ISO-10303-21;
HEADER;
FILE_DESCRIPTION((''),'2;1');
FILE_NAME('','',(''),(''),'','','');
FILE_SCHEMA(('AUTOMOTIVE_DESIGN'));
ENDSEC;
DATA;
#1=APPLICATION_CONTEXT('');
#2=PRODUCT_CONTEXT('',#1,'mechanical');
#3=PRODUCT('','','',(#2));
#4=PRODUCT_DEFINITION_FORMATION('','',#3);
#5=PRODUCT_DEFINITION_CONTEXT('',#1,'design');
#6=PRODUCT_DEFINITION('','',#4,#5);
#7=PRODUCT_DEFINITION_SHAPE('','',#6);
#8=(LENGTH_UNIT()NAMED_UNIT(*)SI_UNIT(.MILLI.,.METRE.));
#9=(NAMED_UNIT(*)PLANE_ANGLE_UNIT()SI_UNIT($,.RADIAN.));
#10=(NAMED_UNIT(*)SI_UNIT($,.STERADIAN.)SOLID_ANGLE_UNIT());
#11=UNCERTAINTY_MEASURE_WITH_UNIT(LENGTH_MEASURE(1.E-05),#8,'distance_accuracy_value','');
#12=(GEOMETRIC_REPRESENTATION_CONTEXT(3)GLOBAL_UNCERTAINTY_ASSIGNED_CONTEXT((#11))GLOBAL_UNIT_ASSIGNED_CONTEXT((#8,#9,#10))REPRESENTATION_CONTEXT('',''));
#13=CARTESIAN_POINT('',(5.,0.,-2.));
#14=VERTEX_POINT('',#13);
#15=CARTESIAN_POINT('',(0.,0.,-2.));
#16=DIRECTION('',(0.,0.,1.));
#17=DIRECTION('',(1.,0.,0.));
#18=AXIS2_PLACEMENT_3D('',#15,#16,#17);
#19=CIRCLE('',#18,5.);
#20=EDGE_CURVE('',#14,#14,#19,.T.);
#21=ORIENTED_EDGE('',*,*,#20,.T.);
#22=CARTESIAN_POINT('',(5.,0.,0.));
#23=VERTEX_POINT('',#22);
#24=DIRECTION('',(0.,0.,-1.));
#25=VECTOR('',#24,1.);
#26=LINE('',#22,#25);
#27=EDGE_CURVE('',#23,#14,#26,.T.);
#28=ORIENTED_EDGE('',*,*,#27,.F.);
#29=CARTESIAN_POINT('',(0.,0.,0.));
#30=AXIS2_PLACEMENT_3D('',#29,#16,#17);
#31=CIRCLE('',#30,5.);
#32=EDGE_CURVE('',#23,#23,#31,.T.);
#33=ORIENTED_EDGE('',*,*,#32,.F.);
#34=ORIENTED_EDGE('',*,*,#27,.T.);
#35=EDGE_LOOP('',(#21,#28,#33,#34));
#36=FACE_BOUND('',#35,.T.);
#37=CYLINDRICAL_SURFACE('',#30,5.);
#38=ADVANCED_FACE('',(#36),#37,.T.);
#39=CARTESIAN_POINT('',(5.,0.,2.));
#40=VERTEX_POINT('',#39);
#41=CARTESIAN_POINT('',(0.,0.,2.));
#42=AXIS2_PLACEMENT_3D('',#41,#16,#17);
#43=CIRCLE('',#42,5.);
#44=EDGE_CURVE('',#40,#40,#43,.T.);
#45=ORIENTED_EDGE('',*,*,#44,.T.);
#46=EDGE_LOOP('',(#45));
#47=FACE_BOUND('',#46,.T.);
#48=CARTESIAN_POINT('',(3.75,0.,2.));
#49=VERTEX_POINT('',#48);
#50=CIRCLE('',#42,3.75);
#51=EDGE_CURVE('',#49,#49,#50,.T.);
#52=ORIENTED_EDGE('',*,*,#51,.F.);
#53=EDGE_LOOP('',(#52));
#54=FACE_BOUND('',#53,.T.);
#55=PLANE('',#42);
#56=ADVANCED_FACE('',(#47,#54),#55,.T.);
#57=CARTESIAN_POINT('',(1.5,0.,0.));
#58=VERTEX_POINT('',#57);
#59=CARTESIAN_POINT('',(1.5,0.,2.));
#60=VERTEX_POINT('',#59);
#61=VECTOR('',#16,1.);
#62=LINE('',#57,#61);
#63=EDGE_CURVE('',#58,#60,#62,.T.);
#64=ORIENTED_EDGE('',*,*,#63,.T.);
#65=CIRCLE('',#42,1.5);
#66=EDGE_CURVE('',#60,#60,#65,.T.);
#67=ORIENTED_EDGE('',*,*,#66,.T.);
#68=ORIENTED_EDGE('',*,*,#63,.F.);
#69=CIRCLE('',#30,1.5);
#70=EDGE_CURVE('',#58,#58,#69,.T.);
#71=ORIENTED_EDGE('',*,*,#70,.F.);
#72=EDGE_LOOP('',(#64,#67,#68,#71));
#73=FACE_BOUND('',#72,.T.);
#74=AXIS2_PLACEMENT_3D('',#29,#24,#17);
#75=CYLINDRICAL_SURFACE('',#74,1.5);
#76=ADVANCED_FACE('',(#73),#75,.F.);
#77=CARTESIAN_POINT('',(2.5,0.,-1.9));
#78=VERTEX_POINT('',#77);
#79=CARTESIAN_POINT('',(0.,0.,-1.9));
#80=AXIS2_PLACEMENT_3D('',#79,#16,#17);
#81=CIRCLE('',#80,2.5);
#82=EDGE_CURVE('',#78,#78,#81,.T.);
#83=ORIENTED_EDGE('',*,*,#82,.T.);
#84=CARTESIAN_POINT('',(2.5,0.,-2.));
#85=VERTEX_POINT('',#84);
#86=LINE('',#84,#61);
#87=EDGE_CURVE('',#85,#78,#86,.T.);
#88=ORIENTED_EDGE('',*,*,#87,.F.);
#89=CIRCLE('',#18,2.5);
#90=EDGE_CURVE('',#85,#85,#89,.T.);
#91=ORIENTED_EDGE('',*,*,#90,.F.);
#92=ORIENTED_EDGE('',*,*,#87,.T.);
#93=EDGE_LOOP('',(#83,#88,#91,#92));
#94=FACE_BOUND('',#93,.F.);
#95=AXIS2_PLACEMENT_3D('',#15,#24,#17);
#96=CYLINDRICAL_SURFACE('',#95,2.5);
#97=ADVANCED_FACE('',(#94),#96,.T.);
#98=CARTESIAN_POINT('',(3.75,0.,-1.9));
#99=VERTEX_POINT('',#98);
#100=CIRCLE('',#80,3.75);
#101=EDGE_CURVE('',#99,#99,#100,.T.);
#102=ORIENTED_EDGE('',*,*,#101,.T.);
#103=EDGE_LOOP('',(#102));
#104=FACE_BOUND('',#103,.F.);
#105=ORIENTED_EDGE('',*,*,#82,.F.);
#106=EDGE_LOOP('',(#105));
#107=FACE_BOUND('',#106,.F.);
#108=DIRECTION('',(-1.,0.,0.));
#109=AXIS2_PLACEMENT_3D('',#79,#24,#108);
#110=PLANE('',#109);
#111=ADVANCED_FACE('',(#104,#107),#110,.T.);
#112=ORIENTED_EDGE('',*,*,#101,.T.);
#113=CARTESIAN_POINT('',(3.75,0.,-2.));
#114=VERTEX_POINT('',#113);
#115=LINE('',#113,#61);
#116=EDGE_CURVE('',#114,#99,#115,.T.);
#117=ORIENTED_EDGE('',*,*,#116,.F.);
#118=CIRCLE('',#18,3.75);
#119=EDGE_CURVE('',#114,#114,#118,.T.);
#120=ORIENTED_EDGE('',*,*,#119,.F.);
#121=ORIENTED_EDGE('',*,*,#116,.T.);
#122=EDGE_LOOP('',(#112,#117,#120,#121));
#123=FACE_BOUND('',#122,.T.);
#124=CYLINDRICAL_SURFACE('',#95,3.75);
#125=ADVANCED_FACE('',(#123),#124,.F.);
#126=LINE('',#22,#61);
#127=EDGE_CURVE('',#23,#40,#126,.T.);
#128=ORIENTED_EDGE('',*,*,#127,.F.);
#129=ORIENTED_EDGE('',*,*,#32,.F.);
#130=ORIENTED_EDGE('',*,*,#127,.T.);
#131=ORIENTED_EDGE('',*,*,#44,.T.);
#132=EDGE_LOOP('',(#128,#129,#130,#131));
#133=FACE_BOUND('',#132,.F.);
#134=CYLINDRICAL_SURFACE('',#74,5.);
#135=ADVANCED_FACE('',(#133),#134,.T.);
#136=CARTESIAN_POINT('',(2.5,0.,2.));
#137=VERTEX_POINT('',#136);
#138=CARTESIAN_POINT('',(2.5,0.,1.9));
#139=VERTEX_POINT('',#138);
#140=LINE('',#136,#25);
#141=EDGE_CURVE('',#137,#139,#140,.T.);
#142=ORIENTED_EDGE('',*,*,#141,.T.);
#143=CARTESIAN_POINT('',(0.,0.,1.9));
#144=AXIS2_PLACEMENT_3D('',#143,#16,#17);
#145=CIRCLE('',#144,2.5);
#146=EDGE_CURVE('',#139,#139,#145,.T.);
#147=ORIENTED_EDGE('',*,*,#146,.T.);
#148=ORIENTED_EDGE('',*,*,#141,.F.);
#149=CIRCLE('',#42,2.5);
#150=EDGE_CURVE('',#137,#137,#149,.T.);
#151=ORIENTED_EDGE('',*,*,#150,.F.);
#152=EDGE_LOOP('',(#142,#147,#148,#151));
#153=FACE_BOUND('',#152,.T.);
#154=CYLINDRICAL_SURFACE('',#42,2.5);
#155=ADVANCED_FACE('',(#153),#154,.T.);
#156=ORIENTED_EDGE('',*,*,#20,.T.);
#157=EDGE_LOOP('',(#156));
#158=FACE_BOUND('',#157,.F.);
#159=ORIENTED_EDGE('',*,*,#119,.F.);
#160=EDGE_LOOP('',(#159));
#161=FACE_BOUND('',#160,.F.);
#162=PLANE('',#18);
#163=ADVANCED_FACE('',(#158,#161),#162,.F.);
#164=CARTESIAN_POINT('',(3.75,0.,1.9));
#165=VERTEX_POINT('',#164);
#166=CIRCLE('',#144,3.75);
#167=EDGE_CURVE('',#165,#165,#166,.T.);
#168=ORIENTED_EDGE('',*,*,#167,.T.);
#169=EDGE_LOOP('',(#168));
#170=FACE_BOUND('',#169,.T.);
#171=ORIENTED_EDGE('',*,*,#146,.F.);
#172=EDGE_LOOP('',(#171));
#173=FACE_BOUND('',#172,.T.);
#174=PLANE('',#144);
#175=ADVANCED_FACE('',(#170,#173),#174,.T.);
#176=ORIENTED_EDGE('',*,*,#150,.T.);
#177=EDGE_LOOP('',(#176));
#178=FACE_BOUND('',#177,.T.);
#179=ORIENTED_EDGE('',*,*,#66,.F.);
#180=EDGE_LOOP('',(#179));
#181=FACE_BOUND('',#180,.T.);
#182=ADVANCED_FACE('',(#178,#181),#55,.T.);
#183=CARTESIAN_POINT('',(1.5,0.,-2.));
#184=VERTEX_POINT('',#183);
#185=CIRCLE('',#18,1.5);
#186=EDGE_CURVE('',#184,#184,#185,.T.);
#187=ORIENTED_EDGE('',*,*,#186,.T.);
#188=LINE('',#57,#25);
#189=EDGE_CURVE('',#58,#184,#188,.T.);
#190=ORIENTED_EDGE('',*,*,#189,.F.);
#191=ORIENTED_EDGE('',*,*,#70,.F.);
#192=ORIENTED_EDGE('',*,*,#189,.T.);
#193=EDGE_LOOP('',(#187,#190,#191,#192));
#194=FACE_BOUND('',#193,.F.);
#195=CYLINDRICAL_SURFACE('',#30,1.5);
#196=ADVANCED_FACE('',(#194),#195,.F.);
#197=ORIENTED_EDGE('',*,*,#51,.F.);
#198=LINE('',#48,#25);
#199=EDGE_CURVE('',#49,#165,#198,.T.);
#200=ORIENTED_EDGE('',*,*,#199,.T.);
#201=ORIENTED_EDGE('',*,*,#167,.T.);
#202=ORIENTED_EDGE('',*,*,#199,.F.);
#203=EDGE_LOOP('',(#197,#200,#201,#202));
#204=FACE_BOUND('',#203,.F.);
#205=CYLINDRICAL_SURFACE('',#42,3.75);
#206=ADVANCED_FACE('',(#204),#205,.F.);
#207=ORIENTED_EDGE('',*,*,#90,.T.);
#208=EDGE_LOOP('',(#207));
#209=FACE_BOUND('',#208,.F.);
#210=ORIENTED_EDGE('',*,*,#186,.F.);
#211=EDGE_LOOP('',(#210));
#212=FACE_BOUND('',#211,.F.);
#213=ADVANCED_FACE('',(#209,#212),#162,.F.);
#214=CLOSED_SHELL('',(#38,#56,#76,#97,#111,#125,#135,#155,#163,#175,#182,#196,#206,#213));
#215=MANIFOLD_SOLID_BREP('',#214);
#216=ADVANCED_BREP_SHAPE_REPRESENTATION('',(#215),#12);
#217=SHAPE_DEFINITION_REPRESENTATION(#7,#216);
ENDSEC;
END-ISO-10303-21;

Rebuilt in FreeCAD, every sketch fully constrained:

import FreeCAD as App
import Part
import Sketcher
from FreeCAD import Vector
Q = App.Units.Quantity

doc = App.newDocument("Part")
params = doc.addObject("Spreadsheet::Sheet", "Params")
for row, (alias, value) in enumerate([
    ("sketch1_diameter", "10 mm"),
    ("sketch1_diameter2", "3 mm"),
    ("pad1_length", "4 mm"),
    ("sketch2_diameter", "5 mm"),
    ("sketch2_diameter2", "7.5 mm"),
    ("pocket1_length", "0.1 mm"),
], start=1):
    params.set(f"A{row}", alias)
    params.set(f"B{row}", "=" + value)
    params.setAlias(f"B{row}", alias)

body = doc.addObject("PartDesign::Body", "Body")

sketch1 = body.newObject("Sketcher::SketchObject", "Sketch")
sketch1.AttachmentSupport = (doc.getObject("XY_Plane"), [""])
sketch1.MapMode = "FlatFace"
sketch1.addGeometry([
    Part.Circle(Vector(0, 0, 0), Vector(0, 0, 1), 5),
    Part.Circle(Vector(0, 0, 0), Vector(0, 0, 1), 1.5),
], False)
sketch1.addConstraint([
    Sketcher.Constraint("Coincident", 0, 3, -1, 1),
    Sketcher.Constraint("Coincident", 1, 3, -1, 1),
    Sketcher.Constraint("Diameter", 0, Q("10 mm")),
    Sketcher.Constraint("Diameter", 1, Q("3 mm")),
])
sketch1.setExpression("Constraints[2]", "Params.sketch1_diameter")
sketch1.setExpression("Constraints[3]", "Params.sketch1_diameter2")
pad1 = body.newObject("PartDesign::Pad", "Pad")
pad1.Profile = sketch1
pad1.setExpression("Length", "Params.pad1_length")
pad1.Midplane = True

sketch2 = body.newObject("Sketcher::SketchObject", "Sketch001")
sketch2.AttachmentSupport = (doc.getObject("XY_Plane"), [""])
sketch2.MapMode = "FlatFace"
sketch2.AttachmentOffset = App.Placement(Vector(0, 0, 2), App.Rotation())
sketch2.addGeometry([
    Part.Circle(Vector(0, 0, 0), Vector(0, 0, 1), 3.8),
    Part.Circle(Vector(0, 0, 0), Vector(0, 0, 1), 2.5),
], False)
sketch2.addConstraint([
    Sketcher.Constraint("Coincident", 0, 3, -1, 1),
    Sketcher.Constraint("Coincident", 1, 3, -1, 1),
    Sketcher.Constraint("Diameter", 1, Q("5 mm")),
    Sketcher.Constraint("Diameter", 0, Q("7.5 mm")),
])
sketch2.setExpression("Constraints[2]", "Params.sketch2_diameter")
sketch2.setExpression("Constraints[3]", "Params.sketch2_diameter2")
pocket1 = body.newObject("PartDesign::Pocket", "Pocket")
pocket1.Profile = sketch2
pocket1.setExpression("Length", "Params.pocket1_length")
doc.recompute()

mirrored = body.newObject("PartDesign::Mirrored", "Mirrored")
mirrored.Originals = [pocket1]
mirrored.MirrorPlane = (doc.getObject("XY_Plane"), [""])
body.Tip = mirrored

doc.recompute()
